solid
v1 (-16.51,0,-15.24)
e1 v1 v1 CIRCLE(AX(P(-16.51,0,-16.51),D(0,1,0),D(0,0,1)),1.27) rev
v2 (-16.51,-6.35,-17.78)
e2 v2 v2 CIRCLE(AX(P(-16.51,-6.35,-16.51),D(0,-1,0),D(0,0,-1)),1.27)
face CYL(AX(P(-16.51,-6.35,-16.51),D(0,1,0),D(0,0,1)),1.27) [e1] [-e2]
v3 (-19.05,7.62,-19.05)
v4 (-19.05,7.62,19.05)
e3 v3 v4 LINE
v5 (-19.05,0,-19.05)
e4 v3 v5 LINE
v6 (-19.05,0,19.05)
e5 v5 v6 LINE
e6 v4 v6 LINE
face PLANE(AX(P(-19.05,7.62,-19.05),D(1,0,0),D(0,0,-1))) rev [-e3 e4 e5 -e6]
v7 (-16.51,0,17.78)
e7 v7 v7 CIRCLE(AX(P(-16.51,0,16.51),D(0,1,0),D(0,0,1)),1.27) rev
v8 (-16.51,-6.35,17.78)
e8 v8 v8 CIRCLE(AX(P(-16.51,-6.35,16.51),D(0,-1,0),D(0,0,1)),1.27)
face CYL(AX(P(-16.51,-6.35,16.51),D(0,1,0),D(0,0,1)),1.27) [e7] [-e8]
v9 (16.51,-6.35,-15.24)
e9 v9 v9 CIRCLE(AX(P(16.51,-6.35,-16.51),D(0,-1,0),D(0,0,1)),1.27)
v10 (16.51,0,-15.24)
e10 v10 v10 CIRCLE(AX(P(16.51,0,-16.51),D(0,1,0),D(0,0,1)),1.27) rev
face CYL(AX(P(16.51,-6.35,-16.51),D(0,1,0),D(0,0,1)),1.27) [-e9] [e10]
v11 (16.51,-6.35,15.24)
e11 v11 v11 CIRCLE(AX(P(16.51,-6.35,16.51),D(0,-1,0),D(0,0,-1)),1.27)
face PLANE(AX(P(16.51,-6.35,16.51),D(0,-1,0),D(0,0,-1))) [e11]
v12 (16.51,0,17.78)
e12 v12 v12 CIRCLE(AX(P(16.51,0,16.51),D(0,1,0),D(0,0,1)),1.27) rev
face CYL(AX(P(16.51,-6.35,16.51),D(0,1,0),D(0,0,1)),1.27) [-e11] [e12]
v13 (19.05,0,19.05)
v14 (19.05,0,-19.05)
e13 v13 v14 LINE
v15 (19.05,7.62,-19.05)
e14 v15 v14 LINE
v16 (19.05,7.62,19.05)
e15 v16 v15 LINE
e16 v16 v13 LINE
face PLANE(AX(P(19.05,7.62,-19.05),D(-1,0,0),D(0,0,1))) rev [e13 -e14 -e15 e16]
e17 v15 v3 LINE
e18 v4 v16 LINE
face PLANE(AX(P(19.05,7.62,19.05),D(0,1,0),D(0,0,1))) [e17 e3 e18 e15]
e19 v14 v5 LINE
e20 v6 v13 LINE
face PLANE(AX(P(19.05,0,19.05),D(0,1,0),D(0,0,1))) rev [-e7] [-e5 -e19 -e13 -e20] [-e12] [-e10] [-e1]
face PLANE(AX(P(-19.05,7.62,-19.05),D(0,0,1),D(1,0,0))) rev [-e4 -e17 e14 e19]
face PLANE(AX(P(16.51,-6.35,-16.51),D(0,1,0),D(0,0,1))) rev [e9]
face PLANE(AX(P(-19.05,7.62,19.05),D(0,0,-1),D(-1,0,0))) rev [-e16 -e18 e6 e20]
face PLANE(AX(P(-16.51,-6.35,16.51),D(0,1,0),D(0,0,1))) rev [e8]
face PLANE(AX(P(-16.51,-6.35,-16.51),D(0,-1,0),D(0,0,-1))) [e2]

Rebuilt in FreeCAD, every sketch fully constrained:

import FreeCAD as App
import Part
import Sketcher
from FreeCAD import Vector
Q = App.Units.Quantity

doc = App.newDocument("Part")
body = doc.addObject("PartDesign::Body", "Body")

# Sketch on XZ plane
sketch1 = doc.addObject("Sketcher::SketchObject", "Sketch")
body.addObject(sketch1)
sketch1.AttachmentSupport = (doc.XZ_Plane, [""])
sketch1.MapMode = "FlatFace"
sketch1.addGeometry([
    Part.LineSegment(Vector(-19, -19, 0), Vector(-19, 19, 0)),
    Part.LineSegment(Vector(-19, 19, 0), Vector(19, 19, 0)),
    Part.LineSegment(Vector(19, 19, 0), Vector(19, -19, 0)),
    Part.LineSegment(Vector(19, -19, 0), Vector(-19, -19, 0)),
], False)
sketch1.addConstraint([
    Sketcher.Constraint("Coincident", 0, 2, 1, 1),
    Sketcher.Constraint("Coincident", 1, 2, 2, 1),
    Sketcher.Constraint("Coincident", 2, 2, 3, 1),
    Sketcher.Constraint("Coincident", 3, 2, 0, 1),
    Sketcher.Constraint("Vertical", 0),
    Sketcher.Constraint("Horizontal", 1),
    Sketcher.Constraint("Vertical", 2),
    Sketcher.Constraint("Horizontal", 3),
    Sketcher.Constraint("Symmetric", 0, 2, 2, 2, -1, 1),
    Sketcher.Constraint("Equal", 3, 0),
    Sketcher.Constraint("DistanceX", 1, 1, 1, 2, Q("1.5 in")),
])
pad1 = doc.addObject("PartDesign::Pad", "Pad")
body.addObject(pad1)
pad1.Profile = sketch1
pad1.Length = Q("0.3 in")
pad1.Reversed = True

# Sketch on XZ plane
sketch2 = doc.addObject("Sketcher::SketchObject", "Sketch001")
body.addObject(sketch2)
sketch2.AttachmentSupport = (doc.XZ_Plane, [""])
sketch2.MapMode = "FlatFace"
sketch2.addGeometry([
    Part.Circle(Vector(16.5, 16.5, 0), Vector(0, 0, 1), 1.3),
    Part.Circle(Vector(16.5, -16.5, 0), Vector(0, 0, 1), 1.3),
    Part.Circle(Vector(-16.5, -16.5, 0), Vector(0, 0, 1), 1.3),
    Part.Circle(Vector(-16.5, 16.5, 0), Vector(0, 0, 1), 1.3),
], False)
sketch2.addConstraint([
    Sketcher.Constraint("Equal", 0, 1),
    Sketcher.Constraint("Equal", 1, 2),
    Sketcher.Constraint("Equal", 2, 3),
    Sketcher.Constraint("Symmetric", 0, 3, 2, 3, -1, 1),
    Sketcher.Constraint("Symmetric", 1, 3, 3, 3, -1, 1),
    Sketcher.Constraint("Symmetric", 1, 3, 2, 3, -2),
    Sketcher.Constraint("Diameter", 0, Q("0.1 in")),
    Sketcher.Constraint("DistanceY", 1, 3, 0, 3, Q("1.3 in")),
    Sketcher.Constraint("DistanceX", 2, 3, 1, 3, Q("1.3 in")),
])
pad2 = doc.addObject("PartDesign::Pad", "Pad001")
body.addObject(pad2)
pad2.Profile = sketch2
pad2.Length = Q("0.25 in")

doc.recompute()
